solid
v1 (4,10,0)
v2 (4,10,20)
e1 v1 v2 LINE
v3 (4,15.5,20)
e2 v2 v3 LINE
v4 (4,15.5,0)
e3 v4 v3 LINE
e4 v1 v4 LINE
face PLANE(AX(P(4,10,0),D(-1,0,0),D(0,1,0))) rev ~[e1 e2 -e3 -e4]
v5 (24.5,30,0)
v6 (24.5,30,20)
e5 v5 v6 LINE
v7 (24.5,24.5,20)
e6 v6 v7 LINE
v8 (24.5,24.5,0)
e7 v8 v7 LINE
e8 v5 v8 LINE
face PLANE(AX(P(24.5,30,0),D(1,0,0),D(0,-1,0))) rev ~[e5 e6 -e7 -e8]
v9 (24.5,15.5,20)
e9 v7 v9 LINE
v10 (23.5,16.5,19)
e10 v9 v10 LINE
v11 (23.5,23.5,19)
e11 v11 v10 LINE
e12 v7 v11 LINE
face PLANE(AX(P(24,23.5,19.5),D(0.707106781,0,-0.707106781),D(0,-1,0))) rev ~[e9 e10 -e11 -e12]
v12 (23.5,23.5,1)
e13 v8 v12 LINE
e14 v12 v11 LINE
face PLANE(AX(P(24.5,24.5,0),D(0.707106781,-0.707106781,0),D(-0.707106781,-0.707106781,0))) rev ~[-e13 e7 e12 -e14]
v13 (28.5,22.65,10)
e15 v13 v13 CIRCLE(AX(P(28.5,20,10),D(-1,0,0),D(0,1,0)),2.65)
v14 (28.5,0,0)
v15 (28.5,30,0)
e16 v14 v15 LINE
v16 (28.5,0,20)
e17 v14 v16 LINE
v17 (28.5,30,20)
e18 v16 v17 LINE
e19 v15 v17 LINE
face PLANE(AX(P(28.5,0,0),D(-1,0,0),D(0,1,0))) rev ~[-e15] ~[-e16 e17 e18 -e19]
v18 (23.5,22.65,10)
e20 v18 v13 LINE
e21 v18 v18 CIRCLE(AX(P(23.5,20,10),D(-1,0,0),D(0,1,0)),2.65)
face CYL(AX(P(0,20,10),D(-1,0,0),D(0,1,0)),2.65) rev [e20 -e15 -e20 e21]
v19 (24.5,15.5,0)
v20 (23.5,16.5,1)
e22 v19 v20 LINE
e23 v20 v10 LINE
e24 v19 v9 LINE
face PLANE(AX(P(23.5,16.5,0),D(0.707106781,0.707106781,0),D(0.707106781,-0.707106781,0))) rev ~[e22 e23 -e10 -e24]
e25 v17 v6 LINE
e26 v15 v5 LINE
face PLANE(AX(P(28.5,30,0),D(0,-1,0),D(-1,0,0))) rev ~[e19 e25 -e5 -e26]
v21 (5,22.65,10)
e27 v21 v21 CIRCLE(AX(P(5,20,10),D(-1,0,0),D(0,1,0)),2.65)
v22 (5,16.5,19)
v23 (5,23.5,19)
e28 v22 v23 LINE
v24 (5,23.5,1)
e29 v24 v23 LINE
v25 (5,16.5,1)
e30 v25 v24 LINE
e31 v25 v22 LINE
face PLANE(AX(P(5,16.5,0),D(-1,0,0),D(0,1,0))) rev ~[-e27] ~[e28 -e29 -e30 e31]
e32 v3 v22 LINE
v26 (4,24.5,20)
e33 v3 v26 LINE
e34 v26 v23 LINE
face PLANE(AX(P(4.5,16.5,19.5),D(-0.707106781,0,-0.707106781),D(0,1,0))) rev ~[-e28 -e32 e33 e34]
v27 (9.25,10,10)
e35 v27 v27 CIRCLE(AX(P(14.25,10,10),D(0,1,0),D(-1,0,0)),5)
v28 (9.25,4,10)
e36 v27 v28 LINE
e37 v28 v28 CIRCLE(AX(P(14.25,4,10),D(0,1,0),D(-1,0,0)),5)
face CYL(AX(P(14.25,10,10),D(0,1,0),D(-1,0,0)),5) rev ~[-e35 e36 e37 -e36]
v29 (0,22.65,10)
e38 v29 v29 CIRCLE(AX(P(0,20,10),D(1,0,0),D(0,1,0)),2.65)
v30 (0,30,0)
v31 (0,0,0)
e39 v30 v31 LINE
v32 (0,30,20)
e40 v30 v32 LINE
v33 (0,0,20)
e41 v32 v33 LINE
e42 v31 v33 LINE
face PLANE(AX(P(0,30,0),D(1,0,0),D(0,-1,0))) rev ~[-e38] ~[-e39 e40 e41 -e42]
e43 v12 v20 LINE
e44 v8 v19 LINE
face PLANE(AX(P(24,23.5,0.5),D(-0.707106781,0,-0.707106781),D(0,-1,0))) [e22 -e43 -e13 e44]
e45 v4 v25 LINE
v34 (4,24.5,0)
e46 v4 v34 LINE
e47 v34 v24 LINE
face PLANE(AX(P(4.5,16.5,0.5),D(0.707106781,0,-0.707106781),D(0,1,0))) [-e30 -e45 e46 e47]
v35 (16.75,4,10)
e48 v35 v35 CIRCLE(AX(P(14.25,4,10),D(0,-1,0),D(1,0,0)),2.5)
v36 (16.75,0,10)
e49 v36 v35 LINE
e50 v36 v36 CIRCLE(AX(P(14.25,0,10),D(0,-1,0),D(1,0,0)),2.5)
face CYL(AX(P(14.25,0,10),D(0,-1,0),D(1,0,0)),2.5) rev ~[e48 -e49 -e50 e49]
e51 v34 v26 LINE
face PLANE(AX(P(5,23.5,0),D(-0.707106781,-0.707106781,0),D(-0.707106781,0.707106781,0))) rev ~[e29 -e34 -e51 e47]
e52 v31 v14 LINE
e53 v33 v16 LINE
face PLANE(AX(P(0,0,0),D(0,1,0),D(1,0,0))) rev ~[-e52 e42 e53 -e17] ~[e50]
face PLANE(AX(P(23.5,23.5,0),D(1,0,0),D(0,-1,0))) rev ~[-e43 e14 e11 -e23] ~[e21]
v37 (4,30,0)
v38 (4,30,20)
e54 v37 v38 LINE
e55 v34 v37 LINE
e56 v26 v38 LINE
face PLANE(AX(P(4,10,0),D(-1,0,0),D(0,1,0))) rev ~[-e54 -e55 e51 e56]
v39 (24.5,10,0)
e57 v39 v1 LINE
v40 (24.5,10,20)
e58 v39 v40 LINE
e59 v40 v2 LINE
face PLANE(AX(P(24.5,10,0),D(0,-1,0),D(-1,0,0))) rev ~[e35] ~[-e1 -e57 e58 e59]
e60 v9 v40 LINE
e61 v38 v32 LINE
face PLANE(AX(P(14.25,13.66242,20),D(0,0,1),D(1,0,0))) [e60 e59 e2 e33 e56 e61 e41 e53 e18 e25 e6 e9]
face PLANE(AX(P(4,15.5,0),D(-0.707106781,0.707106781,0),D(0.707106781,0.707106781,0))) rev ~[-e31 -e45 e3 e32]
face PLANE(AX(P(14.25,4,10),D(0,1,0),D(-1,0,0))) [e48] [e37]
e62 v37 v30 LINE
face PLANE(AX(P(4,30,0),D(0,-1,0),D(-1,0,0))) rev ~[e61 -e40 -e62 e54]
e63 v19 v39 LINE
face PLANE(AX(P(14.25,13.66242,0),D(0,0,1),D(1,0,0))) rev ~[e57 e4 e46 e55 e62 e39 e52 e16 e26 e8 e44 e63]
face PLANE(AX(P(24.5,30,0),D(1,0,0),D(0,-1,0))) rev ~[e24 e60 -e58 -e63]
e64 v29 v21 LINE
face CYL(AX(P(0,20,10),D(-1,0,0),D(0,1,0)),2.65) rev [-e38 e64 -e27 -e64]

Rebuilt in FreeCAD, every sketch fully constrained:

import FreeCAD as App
import Part
import Sketcher
from FreeCAD import Vector


def edges_at(feature, points):
    """Names of the edges that pass closest to the given points."""
    edges = feature.Shape.Edges
    near = lambda p: min(range(len(edges)), key=lambda i: edges[i].distToShape(Part.Vertex(*p))[0])
    return sorted({f"Edge{near(p) + 1}" for p in points})

doc = App.newDocument("Part")
params = doc.addObject("Spreadsheet::Sheet", "Params")
for row, (alias, value) in enumerate([
    ("sketch1_width", "4 mm"),
    ("sketch1_height", "30 mm"),
    ("sketch1_height2", "20 mm"),
    ("sketch1_width2", "28.5 mm"),
    ("pad1_length", "20 mm"),
    ("sketch2_diameter", "5 mm"),
    ("sketch3_diameter", "10 mm"),
    ("pocket2_length", "6 mm"),
    ("sketch4_height", "9 mm"),
    ("sketch4_height2", "7 mm"),
    ("pad2_length", "20 mm"),
    ("chamfer_size", "1 mm"),
    ("sketch5_diameter", "5.3 mm"),
], start=1):
    params.set(f"A{row}", alias)
    params.set(f"B{row}", "=" + value)
    params.setAlias(f"B{row}", alias)

body = doc.addObject("PartDesign::Body", "Body")

sketch1 = body.newObject("Sketcher::SketchObject", "Sketch")
sketch1.AttachmentSupport = (doc.getObject("XY_Plane"), [""])
sketch1.MapMode = "FlatFace"
sketch1.addGeometry(Part.LineSegment(Vector(0, 30, 0), Vector(0, 0, 0)), False)
sketch1.addGeometry(Part.LineSegment(Vector(0, 0, 0), Vector(28.5, 0, 0)), False)
sketch1.addGeometry(Part.LineSegment(Vector(28.5, 0, 0), Vector(28.5, 30, 0)), False)
sketch1.addGeometry(Part.LineSegment(Vector(28.5, 30, 0), Vector(24.5, 30, 0)), False)
sketch1.addGeometry(Part.LineSegment(Vector(24.5, 30, 0), Vector(24.5, 10, 0)), False)
sketch1.addGeometry(Part.LineSegment(Vector(24.5, 10, 0), Vector(4, 10, 0)), False)
sketch1.addGeometry(Part.LineSegment(Vector(4, 10, 0), Vector(4, 30, 0)), False)
sketch1.addGeometry(Part.LineSegment(Vector(4, 30, 0), Vector(0, 30, 0)), False)
sketch1.addConstraint(Sketcher.Constraint("Coincident", 0, 2, 1, 1))
sketch1.addConstraint(Sketcher.Constraint("Coincident", 1, 2, 2, 1))
sketch1.addConstraint(Sketcher.Constraint("Coincident", 2, 2, 3, 1))
sketch1.addConstraint(Sketcher.Constraint("Coincident", 3, 2, 4, 1))
sketch1.addConstraint(Sketcher.Constraint("Coincident", 4, 2, 5, 1))
sketch1.addConstraint(Sketcher.Constraint("Coincident", 5, 2, 6, 1))
sketch1.addConstraint(Sketcher.Constraint("Coincident", 6, 2, 7, 1))
sketch1.addConstraint(Sketcher.Constraint("Coincident", 7, 2, 0, 1))
sketch1.addConstraint(Sketcher.Constraint("Vertical", 0))
sketch1.addConstraint(Sketcher.Constraint("Horizontal", 1))
sketch1.addConstraint(Sketcher.Constraint("Vertical", 2))
sketch1.addConstraint(Sketcher.Constraint("Horizontal", 3))
sketch1.addConstraint(Sketcher.Constraint("Vertical", 4))
sketch1.addConstraint(Sketcher.Constraint("Horizontal", 5))
sketch1.addConstraint(Sketcher.Constraint("Vertical", 6))
sketch1.addConstraint(Sketcher.Constraint("Horizontal", 7))
sketch1.addConstraint(Sketcher.Constraint("Coincident", 0, 2, -1, 1))
sketch1.addConstraint(Sketcher.Constraint("Horizontal", 3, 2, 6, 2))
sketch1.addConstraint(Sketcher.Constraint("Equal", 3, 7))
sketch1.addConstraint(Sketcher.Constraint("DistanceX", 3, 2, 3, 1, 4.0))
sketch1.addConstraint(Sketcher.Constraint("DistanceY", 0, 2, 0, 1, 30.0))
sketch1.addConstraint(Sketcher.Constraint("DistanceY", 4, 2, 4, 1, 20.0))
sketch1.addConstraint(Sketcher.Constraint("DistanceX", 1, 1, 1, 2, 28.5))
sketch1.setExpression("Constraints[19]", "Params.sketch1_width")
sketch1.setExpression("Constraints[20]", "Params.sketch1_height")
sketch1.setExpression("Constraints[21]", "Params.sketch1_height2")
sketch1.setExpression("Constraints[22]", "Params.sketch1_width2")
pad1 = body.newObject("PartDesign::Pad", "Pad")
pad1.Profile = sketch1
pad1.setExpression("Length", "Params.pad1_length")

sketch2 = body.newObject("Sketcher::SketchObject", "Sketch001")
sketch2.AttachmentSupport = (doc.getObject("XZ_Plane"), [""])
sketch2.MapMode = "FlatFace"
sketch2.addGeometry(Part.Circle(Vector(14.2, 10, 0), Vector(0, 0, 1), 2.5), False)
sketch2.addConstraint(Sketcher.Constraint("Diameter", 0, 5.0))
sketch2.addConstraint(Sketcher.Constraint("DistanceY", -1, 1, 0, 3, 10.0))
sketch2.addConstraint(Sketcher.Constraint("DistanceX", -1, 1, 0, 3, 14.25))
sketch2.setExpression("Constraints[0]", "Params.sketch2_diameter")
pocket1 = body.newObject("PartDesign::Pocket", "Pocket")
pocket1.Profile = sketch2
pocket1.Type = "ThroughAll"

sketch3 = body.newObject("Sketcher::SketchObject", "Sketch002")
sketch3.AttachmentSupport = (doc.getObject("XZ_Plane"), [""])
sketch3.MapMode = "FlatFace"
sketch3.AttachmentOffset = App.Placement(Vector(0, 0, -10), App.Rotation())
sketch3.addGeometry(Part.Circle(Vector(14, 10, 0), Vector(0, 0, 1), 5), False)
sketch3.addConstraint(Sketcher.Constraint("Diameter", 0, 10.0))
sketch3.addConstraint(Sketcher.Constraint("DistanceY", -1, 1, 0, 3, 10.0))
sketch3.addConstraint(Sketcher.Constraint("DistanceX", -1, 1, 0, 3, 14.25))
sketch3.setExpression("Constraints[0]", "Params.sketch3_diameter")
pocket2 = body.newObject("PartDesign::Pocket", "Pocket001")
pocket2.Profile = sketch3
pocket2.setExpression("Length", "Params.pocket2_length")
pocket2.Reversed = True

sketch4 = body.newObject("Sketcher::SketchObject", "Sketch003")
sketch4.AttachmentSupport = (doc.getObject("XY_Plane"), [""])
sketch4.MapMode = "FlatFace"
sketch4.addGeometry(Part.LineSegment(Vector(4, 24.5, 0), Vector(4, 15.5, 0)), False)
sketch4.addGeometry(Part.LineSegment(Vector(4, 15.5, 0), Vector(5, 16.5, 0)), False)
sketch4.addGeometry(Part.LineSegment(Vector(5, 16.5, 0), Vector(5, 23.5, 0)), False)
sketch4.addGeometry(Part.LineSegment(Vector(5, 23.5, 0), Vector(4, 24.5, 0)), False)
sketch4.addGeometry(Part.LineSegment(Vector(23.5, 16.5, 0), Vector(24.5, 15.5, 0)), False)
sketch4.addGeometry(Part.LineSegment(Vector(24.5, 15.5, 0), Vector(24.5, 24.5, 0)), False)
sketch4.addGeometry(Part.LineSegment(Vector(24.5, 24.5, 0), Vector(23.5, 23.5, 0)), False)
sketch4.addGeometry(Part.LineSegment(Vector(23.5, 23.5, 0), Vector(23.5, 16.5, 0)), False)
sketch4.addConstraint(Sketcher.Constraint("Coincident", 0, 2, 1, 1))
sketch4.addConstraint(Sketcher.Constraint("Coincident", 1, 2, 2, 1))
sketch4.addConstraint(Sketcher.Constraint("Coincident", 2, 2, 3, 1))
sketch4.addConstraint(Sketcher.Constraint("Coincident", 3, 2, 0, 1))
sketch4.addConstraint(Sketcher.Constraint("Coincident", 4, 2, 5, 1))
sketch4.addConstraint(Sketcher.Constraint("Coincident", 5, 2, 6, 1))
sketch4.addConstraint(Sketcher.Constraint("Coincident", 6, 2, 7, 1))
sketch4.addConstraint(Sketcher.Constraint("Coincident", 7, 2, 4, 1))
sketch4.addConstraint(Sketcher.Constraint("Vertical", 0))
sketch4.addConstraint(Sketcher.Constraint("Vertical", 2))
sketch4.addConstraint(Sketcher.Constraint("Vertical", 5))
sketch4.addConstraint(Sketcher.Constraint("Vertical", 7))
sketch4.addConstraint(Sketcher.Constraint("Perpendicular", 1, 3))
sketch4.addConstraint(Sketcher.Constraint("Parallel", 3, 4))
sketch4.addConstraint(Sketcher.Constraint("Perpendicular", 4, 6))
sketch4.addConstraint(Sketcher.Constraint("Horizontal", 0, 2, 4, 2))
sketch4.addConstraint(Sketcher.Constraint("Horizontal", 3, 2, 5, 2))
sketch4.addConstraint(Sketcher.Constraint("Horizontal", 2, 2, 6, 2))
sketch4.addConstraint(Sketcher.Constraint("Horizontal", 1, 2, 7, 2))
sketch4.addConstraint(Sketcher.Constraint("DistanceY", 0, 2, 0, 1, 9.0))
sketch4.addConstraint(Sketcher.Constraint("DistanceY", 2, 1, 2, 2, 7.0))
sketch4.addConstraint(Sketcher.Constraint("DistanceX", -1, 1, 0, 2, 4.0))
sketch4.addConstraint(Sketcher.Constraint("DistanceY", -1, 1, 0, 2, 15.5))
sketch4.addConstraint(Sketcher.Constraint("DistanceX", -1, 1, 4, 2, 24.5))
sketch4.setExpression("Constraints[19]", "Params.sketch4_height")
sketch4.setExpression("Constraints[20]", "Params.sketch4_height2")
pad2 = body.newObject("PartDesign::Pad", "Pad001")
pad2.Profile = sketch4
pad2.setExpression("Length", "Params.pad2_length")
doc.recompute()

chamfer = body.newObject("PartDesign::Chamfer", "Chamfer")
chamfer.Base = (pad2, edges_at(pad2, [
    (5, 20, 20),
    (5, 20, 0),
    (23.5, 20, 20),
    (23.5, 20, 0),
]))
chamfer.setExpression("Size", "Params.chamfer_size")

sketch5 = body.newObject("Sketcher::SketchObject", "Sketch004")
sketch5.AttachmentSupport = (doc.getObject("YZ_Plane"), [""])
sketch5.MapMode = "FlatFace"
sketch5.addGeometry(Part.Circle(Vector(20, 10, 0), Vector(0, 0, 1), 2.6), False)
sketch5.addConstraint(Sketcher.Constraint("Diameter", 0, 5.3))
sketch5.addConstraint(Sketcher.Constraint("DistanceX", -1, 1, 0, 3, 20.0))
sketch5.addConstraint(Sketcher.Constraint("DistanceY", -1, 1, 0, 3, 10.0))
sketch5.setExpression("Constraints[0]", "Params.sketch5_diameter")
pocket3 = body.newObject("PartDesign::Pocket", "Pocket002")
pocket3.Profile = sketch5
pocket3.Type = "ThroughAll"
pocket3.Reversed = True

doc.recompute()
